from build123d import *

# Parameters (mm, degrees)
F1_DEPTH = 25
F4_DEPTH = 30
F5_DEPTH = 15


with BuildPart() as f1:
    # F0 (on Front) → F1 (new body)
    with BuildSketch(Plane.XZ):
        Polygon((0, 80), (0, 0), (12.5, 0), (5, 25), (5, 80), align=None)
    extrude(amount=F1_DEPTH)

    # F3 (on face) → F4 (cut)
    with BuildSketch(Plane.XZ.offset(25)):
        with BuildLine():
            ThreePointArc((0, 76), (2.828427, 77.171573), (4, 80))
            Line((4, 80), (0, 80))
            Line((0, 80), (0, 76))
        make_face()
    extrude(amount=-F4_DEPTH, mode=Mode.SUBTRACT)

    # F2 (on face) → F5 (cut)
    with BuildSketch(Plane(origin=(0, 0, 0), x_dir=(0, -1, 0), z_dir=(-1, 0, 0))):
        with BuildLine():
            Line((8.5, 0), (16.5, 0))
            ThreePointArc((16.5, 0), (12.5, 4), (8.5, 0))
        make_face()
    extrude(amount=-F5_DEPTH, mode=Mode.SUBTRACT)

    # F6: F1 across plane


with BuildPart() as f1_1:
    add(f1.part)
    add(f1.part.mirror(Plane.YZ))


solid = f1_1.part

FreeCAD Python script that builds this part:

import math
import FreeCAD as App
import Part
import Sketcher
Q = App.Units.Quantity

doc = App.newDocument("Part")
body = doc.addObject("PartDesign::Body", "Body")

sketch1 = body.newObject("Sketcher::SketchObject", "Sketch")
sketch1.AttachmentSupport = (doc.getObject("XZ_Plane"), [""])
sketch1.MapMode = "FlatFace"
sketch1.addGeometry([
    Part.LineSegment(App.Vector(0, 80, 0), App.Vector(0, 0, 0)),
    Part.LineSegment(App.Vector(0, 0, 0), App.Vector(12, 0, 0)),
    Part.LineSegment(App.Vector(12, 0, 0), App.Vector(5, 25, 0)),
    Part.LineSegment(App.Vector(5, 25, 0), App.Vector(5, 80, 0)),
    Part.LineSegment(App.Vector(5, 80, 0), App.Vector(0, 80, 0)),
], False)
sketch1.addConstraint([
    Sketcher.Constraint("Coincident", 0, 2, 1, 1),
    Sketcher.Constraint("Coincident", 1, 2, 2, 1),
    Sketcher.Constraint("Coincident", 2, 2, 3, 1),
    Sketcher.Constraint("Coincident", 3, 2, 4, 1),
    Sketcher.Constraint("Coincident", 4, 2, 0, 1),
    Sketcher.Constraint("Vertical", 0),
    Sketcher.Constraint("Horizontal", 1),
    Sketcher.Constraint("Vertical", 3),
    Sketcher.Constraint("Horizontal", 4),
    Sketcher.Constraint("Coincident", 0, 2, -1, 1),
    Sketcher.Constraint("DistanceX", 4, 2, 4, 1, Q("5 mm")),
    Sketcher.Constraint("DistanceY", 0, 2, 0, 1, Q("80 mm")),
    Sketcher.Constraint("DistanceY", 3, 1, 3, 2, Q("55 mm")),
    Sketcher.Constraint("DistanceX", 1, 1, 1, 2, Q("12.5 mm")),
])
pad1 = body.newObject("PartDesign::Pad", "Pad")
pad1.Profile = sketch1
pad1.Length = 25

sketch2 = body.newObject("Sketcher::SketchObject", "Sketch001")
sketch2.AttachmentSupport = (doc.getObject("XZ_Plane"), [""])
sketch2.MapMode = "FlatFace"
sketch2.AttachmentOffset = App.Placement(App.Vector(0, 0, 25), App.Rotation())
sketch2.addGeometry([
    Part.ArcOfCircle(Part.Circle(App.Vector(0, 80, 0), App.Vector(0, 0, 1), 4), math.radians(-90), math.radians(0)),
    Part.LineSegment(App.Vector(4, 80, 0), App.Vector(0, 80, 0)),
    Part.LineSegment(App.Vector(0, 80, 0), App.Vector(0, 76, 0)),
], False)
sketch2.addConstraint([
    Sketcher.Constraint("Coincident", 0, 2, 1, 1),
    Sketcher.Constraint("Coincident", 1, 2, 2, 1),
    Sketcher.Constraint("Coincident", 2, 2, 0, 1),
    Sketcher.Constraint("Horizontal", 1),
    Sketcher.Constraint("Vertical", 2),
    Sketcher.Constraint("Coincident", 1, 2, 0, 3),
    Sketcher.Constraint("PointOnObject", 0, 3, -2),
    Sketcher.Constraint("Radius", 0, Q("4 mm")),
    Sketcher.Constraint("DistanceY", -1, 1, 0, 3, Q("80 mm")),
])
pocket1 = body.newObject("PartDesign::Pocket", "Pocket")
pocket1.Profile = sketch2
pocket1.Length = 30

sketch3 = body.newObject("Sketcher::SketchObject", "Sketch002")
sketch3.AttachmentSupport = (doc.getObject("YZ_Plane"), [""])
sketch3.MapMode = "FlatFace"
sketch3.addGeometry([
    Part.LineSegment(App.Vector(-8.5, 0, 0), App.Vector(-16.5, 0, 0)),
    Part.ArcOfCircle(Part.Circle(App.Vector(-12.5, 0, 0), App.Vector(0, 0, 1), 4), math.radians(0), math.radians(180)),
], False)
sketch3.addConstraint([
    Sketcher.Constraint("Coincident", 0, 1, 1, 1),
    Sketcher.Constraint("Coincident", 1, 2, 0, 2),
    Sketcher.Constraint("Horizontal", 0),
    Sketcher.Constraint("PointOnObject", 1, 3, -1),
    Sketcher.Constraint("PointOnObject", 0, 1, -1),
    Sketcher.Constraint("Radius", 1, Q("4 mm")),
    Sketcher.Constraint("DistanceX", 1, 3, -1, 1, Q("12.5 mm")),
])
pocket2 = body.newObject("PartDesign::Pocket", "Pocket001")
pocket2.Profile = sketch3
pocket2.Length = 15
pocket2.Reversed = True
body2 = doc.addObject("PartDesign::Body", "Body001")
doc.recompute()

body2.BaseFeature = body
doc.recompute()

mirroring = doc.addObject("Part::Mirroring", "Mirroring")
mirroring.Source = body
mirroring.Base = App.Vector(0, 0, 0)
mirroring.Normal = App.Vector(1, 0, 0)
body3 = doc.addObject("PartDesign::Body", "Body002")
body3.BaseFeature = mirroring
boolean = body2.newObject("PartDesign::Boolean", "Boolean")
boolean.Type = "Fuse"
boolean.addObjects([body3])
doc.recompute()
mirroring.Visibility = False

doc.recompute()
